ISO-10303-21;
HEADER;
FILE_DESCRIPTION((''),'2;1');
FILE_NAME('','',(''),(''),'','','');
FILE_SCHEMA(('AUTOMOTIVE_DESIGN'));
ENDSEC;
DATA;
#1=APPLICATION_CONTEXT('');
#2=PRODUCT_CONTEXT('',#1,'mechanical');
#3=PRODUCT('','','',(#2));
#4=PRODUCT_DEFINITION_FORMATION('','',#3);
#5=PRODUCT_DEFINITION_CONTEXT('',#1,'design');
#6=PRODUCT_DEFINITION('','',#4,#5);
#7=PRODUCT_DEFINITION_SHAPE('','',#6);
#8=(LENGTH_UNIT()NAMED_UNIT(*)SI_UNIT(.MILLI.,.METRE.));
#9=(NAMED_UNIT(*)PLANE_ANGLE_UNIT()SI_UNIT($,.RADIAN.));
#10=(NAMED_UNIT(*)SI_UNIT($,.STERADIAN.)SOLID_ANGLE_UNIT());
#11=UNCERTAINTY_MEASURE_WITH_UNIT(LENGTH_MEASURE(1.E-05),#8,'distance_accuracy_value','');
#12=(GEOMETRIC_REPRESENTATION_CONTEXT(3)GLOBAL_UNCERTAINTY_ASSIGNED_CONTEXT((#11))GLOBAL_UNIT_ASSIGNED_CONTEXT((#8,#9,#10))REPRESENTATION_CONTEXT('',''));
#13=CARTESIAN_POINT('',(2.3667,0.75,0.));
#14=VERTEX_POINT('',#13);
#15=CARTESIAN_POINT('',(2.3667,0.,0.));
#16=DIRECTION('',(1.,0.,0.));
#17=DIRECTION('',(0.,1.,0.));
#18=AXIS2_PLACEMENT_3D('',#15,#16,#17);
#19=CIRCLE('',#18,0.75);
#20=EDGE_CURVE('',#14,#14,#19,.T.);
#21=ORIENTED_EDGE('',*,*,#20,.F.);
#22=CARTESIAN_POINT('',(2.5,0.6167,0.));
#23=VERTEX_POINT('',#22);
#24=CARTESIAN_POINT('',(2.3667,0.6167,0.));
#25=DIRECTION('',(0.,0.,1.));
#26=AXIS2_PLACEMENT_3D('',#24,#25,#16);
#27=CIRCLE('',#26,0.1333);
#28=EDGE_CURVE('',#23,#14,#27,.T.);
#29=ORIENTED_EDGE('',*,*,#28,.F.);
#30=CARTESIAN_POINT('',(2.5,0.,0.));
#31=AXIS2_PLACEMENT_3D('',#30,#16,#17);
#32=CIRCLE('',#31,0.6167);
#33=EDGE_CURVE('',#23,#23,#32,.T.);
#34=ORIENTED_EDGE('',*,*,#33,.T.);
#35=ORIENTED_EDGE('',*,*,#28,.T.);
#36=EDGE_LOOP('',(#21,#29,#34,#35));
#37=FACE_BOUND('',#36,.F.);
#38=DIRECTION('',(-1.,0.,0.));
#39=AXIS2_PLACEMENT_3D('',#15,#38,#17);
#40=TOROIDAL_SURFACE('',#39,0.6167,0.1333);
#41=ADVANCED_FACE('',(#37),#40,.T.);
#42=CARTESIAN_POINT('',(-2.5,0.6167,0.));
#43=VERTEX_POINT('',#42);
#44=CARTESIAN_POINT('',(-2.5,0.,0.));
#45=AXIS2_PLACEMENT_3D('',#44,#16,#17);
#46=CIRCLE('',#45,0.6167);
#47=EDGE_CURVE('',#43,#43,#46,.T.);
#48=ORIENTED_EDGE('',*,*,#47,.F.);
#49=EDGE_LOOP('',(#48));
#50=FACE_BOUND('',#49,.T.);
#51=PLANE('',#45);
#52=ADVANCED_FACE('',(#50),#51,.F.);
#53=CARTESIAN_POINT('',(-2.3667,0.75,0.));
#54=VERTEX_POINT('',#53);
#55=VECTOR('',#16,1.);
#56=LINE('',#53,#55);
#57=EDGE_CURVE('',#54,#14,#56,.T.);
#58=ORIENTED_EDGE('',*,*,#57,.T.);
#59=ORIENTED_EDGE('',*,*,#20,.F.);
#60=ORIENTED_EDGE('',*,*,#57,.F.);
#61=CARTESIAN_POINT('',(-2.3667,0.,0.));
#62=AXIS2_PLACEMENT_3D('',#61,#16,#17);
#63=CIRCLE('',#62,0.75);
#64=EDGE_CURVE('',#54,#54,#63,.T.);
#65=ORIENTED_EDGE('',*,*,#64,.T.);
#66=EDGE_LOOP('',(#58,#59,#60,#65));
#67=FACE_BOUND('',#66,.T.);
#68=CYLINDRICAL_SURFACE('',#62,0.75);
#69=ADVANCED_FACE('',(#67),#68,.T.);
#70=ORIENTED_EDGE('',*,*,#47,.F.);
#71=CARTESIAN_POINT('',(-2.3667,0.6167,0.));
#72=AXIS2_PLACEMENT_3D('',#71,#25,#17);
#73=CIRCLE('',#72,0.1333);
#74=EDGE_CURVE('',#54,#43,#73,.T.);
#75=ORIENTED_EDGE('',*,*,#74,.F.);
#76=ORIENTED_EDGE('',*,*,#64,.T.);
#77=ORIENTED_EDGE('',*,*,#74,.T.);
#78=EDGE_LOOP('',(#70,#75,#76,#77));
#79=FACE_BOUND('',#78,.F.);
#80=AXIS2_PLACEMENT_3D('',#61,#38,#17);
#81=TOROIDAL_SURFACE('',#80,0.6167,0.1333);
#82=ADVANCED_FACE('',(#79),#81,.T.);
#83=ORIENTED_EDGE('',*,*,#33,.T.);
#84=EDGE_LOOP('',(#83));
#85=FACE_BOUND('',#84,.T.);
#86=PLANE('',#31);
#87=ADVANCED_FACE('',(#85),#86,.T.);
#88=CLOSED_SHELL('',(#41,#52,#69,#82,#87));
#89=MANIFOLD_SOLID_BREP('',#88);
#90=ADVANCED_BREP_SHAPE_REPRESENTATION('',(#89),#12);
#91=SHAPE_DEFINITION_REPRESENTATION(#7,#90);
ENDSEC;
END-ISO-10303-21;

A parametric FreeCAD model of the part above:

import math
import FreeCAD as App
import Part
import Sketcher
from FreeCAD import Vector

doc = App.newDocument("Part")
body = doc.addObject("PartDesign::Body", "Body")

# Sketch on XY plane
sketch1 = body.newObject("Sketcher::SketchObject", "Sketch")
sketch1.AttachmentSupport = (doc.getObject("XY_Plane"), [""])
sketch1.MapMode = "FlatFace"
sketch1.addGeometry(Part.LineSegment(Vector(-2.5, 0, 0), Vector(2.5, 0, 0)), False)
sketch1.addGeometry(Part.LineSegment(Vector(2.5, 0, 0), Vector(2.5, 0.6167, 0)), False)
sketch1.addGeometry(Part.ArcOfCircle(Part.Circle(Vector(2.3667, 0.6167, 0), Vector(0, 0, 1), 0.1333), math.radians(0), math.radians(90)), False)
sketch1.addGeometry(Part.LineSegment(Vector(2.3667, 0.75, 0), Vector(-2.3667, 0.75, 0)), False)
sketch1.addGeometry(Part.ArcOfCircle(Part.Circle(Vector(-2.3667, 0.6167, 0), Vector(0, 0, 1), 0.1333), math.radians(90), math.radians(180)), False)
sketch1.addGeometry(Part.LineSegment(Vector(-2.5, 0.6167, 0), Vector(-2.5, 0, 0)), False)
sketch1.addConstraint(Sketcher.Constraint("Coincident", 0, 2, 1, 1))
sketch1.addConstraint(Sketcher.Constraint("Tangent", 1, 2, 2, 1))
sketch1.addConstraint(Sketcher.Constraint("Tangent", 2, 2, 3, 1))
sketch1.addConstraint(Sketcher.Constraint("Tangent", 3, 2, 4, 1))
sketch1.addConstraint(Sketcher.Constraint("Tangent", 4, 2, 5, 1))
sketch1.addConstraint(Sketcher.Constraint("Coincident", 5, 2, 0, 1))
sketch1.addConstraint(Sketcher.Constraint("Horizontal", 0))
sketch1.addConstraint(Sketcher.Constraint("Vertical", 1))
sketch1.addConstraint(Sketcher.Constraint("Horizontal", 3))
sketch1.addConstraint(Sketcher.Constraint("Vertical", 5))
sketch1.addConstraint(Sketcher.Constraint("Equal", 2, 4))
sketch1.addConstraint(Sketcher.Constraint("Symmetric", 0, 2, 5, 2, -1, 1))
sketch1.addConstraint(Sketcher.Constraint("DistanceX", 0, 1, 0, 2, 5.0))
sketch1.addConstraint(Sketcher.Constraint("Radius", 2, 0.1333))
sketch1.addConstraint(Sketcher.Constraint("DistanceY", -1, 1, 2, 2, 0.75))
revolution = body.newObject("PartDesign::Revolution", "Revolution")
revolution.Profile = sketch1
revolution.ReferenceAxis = (sketch1, ["H_Axis"])
revolution.Angle = 360

doc.recompute()
